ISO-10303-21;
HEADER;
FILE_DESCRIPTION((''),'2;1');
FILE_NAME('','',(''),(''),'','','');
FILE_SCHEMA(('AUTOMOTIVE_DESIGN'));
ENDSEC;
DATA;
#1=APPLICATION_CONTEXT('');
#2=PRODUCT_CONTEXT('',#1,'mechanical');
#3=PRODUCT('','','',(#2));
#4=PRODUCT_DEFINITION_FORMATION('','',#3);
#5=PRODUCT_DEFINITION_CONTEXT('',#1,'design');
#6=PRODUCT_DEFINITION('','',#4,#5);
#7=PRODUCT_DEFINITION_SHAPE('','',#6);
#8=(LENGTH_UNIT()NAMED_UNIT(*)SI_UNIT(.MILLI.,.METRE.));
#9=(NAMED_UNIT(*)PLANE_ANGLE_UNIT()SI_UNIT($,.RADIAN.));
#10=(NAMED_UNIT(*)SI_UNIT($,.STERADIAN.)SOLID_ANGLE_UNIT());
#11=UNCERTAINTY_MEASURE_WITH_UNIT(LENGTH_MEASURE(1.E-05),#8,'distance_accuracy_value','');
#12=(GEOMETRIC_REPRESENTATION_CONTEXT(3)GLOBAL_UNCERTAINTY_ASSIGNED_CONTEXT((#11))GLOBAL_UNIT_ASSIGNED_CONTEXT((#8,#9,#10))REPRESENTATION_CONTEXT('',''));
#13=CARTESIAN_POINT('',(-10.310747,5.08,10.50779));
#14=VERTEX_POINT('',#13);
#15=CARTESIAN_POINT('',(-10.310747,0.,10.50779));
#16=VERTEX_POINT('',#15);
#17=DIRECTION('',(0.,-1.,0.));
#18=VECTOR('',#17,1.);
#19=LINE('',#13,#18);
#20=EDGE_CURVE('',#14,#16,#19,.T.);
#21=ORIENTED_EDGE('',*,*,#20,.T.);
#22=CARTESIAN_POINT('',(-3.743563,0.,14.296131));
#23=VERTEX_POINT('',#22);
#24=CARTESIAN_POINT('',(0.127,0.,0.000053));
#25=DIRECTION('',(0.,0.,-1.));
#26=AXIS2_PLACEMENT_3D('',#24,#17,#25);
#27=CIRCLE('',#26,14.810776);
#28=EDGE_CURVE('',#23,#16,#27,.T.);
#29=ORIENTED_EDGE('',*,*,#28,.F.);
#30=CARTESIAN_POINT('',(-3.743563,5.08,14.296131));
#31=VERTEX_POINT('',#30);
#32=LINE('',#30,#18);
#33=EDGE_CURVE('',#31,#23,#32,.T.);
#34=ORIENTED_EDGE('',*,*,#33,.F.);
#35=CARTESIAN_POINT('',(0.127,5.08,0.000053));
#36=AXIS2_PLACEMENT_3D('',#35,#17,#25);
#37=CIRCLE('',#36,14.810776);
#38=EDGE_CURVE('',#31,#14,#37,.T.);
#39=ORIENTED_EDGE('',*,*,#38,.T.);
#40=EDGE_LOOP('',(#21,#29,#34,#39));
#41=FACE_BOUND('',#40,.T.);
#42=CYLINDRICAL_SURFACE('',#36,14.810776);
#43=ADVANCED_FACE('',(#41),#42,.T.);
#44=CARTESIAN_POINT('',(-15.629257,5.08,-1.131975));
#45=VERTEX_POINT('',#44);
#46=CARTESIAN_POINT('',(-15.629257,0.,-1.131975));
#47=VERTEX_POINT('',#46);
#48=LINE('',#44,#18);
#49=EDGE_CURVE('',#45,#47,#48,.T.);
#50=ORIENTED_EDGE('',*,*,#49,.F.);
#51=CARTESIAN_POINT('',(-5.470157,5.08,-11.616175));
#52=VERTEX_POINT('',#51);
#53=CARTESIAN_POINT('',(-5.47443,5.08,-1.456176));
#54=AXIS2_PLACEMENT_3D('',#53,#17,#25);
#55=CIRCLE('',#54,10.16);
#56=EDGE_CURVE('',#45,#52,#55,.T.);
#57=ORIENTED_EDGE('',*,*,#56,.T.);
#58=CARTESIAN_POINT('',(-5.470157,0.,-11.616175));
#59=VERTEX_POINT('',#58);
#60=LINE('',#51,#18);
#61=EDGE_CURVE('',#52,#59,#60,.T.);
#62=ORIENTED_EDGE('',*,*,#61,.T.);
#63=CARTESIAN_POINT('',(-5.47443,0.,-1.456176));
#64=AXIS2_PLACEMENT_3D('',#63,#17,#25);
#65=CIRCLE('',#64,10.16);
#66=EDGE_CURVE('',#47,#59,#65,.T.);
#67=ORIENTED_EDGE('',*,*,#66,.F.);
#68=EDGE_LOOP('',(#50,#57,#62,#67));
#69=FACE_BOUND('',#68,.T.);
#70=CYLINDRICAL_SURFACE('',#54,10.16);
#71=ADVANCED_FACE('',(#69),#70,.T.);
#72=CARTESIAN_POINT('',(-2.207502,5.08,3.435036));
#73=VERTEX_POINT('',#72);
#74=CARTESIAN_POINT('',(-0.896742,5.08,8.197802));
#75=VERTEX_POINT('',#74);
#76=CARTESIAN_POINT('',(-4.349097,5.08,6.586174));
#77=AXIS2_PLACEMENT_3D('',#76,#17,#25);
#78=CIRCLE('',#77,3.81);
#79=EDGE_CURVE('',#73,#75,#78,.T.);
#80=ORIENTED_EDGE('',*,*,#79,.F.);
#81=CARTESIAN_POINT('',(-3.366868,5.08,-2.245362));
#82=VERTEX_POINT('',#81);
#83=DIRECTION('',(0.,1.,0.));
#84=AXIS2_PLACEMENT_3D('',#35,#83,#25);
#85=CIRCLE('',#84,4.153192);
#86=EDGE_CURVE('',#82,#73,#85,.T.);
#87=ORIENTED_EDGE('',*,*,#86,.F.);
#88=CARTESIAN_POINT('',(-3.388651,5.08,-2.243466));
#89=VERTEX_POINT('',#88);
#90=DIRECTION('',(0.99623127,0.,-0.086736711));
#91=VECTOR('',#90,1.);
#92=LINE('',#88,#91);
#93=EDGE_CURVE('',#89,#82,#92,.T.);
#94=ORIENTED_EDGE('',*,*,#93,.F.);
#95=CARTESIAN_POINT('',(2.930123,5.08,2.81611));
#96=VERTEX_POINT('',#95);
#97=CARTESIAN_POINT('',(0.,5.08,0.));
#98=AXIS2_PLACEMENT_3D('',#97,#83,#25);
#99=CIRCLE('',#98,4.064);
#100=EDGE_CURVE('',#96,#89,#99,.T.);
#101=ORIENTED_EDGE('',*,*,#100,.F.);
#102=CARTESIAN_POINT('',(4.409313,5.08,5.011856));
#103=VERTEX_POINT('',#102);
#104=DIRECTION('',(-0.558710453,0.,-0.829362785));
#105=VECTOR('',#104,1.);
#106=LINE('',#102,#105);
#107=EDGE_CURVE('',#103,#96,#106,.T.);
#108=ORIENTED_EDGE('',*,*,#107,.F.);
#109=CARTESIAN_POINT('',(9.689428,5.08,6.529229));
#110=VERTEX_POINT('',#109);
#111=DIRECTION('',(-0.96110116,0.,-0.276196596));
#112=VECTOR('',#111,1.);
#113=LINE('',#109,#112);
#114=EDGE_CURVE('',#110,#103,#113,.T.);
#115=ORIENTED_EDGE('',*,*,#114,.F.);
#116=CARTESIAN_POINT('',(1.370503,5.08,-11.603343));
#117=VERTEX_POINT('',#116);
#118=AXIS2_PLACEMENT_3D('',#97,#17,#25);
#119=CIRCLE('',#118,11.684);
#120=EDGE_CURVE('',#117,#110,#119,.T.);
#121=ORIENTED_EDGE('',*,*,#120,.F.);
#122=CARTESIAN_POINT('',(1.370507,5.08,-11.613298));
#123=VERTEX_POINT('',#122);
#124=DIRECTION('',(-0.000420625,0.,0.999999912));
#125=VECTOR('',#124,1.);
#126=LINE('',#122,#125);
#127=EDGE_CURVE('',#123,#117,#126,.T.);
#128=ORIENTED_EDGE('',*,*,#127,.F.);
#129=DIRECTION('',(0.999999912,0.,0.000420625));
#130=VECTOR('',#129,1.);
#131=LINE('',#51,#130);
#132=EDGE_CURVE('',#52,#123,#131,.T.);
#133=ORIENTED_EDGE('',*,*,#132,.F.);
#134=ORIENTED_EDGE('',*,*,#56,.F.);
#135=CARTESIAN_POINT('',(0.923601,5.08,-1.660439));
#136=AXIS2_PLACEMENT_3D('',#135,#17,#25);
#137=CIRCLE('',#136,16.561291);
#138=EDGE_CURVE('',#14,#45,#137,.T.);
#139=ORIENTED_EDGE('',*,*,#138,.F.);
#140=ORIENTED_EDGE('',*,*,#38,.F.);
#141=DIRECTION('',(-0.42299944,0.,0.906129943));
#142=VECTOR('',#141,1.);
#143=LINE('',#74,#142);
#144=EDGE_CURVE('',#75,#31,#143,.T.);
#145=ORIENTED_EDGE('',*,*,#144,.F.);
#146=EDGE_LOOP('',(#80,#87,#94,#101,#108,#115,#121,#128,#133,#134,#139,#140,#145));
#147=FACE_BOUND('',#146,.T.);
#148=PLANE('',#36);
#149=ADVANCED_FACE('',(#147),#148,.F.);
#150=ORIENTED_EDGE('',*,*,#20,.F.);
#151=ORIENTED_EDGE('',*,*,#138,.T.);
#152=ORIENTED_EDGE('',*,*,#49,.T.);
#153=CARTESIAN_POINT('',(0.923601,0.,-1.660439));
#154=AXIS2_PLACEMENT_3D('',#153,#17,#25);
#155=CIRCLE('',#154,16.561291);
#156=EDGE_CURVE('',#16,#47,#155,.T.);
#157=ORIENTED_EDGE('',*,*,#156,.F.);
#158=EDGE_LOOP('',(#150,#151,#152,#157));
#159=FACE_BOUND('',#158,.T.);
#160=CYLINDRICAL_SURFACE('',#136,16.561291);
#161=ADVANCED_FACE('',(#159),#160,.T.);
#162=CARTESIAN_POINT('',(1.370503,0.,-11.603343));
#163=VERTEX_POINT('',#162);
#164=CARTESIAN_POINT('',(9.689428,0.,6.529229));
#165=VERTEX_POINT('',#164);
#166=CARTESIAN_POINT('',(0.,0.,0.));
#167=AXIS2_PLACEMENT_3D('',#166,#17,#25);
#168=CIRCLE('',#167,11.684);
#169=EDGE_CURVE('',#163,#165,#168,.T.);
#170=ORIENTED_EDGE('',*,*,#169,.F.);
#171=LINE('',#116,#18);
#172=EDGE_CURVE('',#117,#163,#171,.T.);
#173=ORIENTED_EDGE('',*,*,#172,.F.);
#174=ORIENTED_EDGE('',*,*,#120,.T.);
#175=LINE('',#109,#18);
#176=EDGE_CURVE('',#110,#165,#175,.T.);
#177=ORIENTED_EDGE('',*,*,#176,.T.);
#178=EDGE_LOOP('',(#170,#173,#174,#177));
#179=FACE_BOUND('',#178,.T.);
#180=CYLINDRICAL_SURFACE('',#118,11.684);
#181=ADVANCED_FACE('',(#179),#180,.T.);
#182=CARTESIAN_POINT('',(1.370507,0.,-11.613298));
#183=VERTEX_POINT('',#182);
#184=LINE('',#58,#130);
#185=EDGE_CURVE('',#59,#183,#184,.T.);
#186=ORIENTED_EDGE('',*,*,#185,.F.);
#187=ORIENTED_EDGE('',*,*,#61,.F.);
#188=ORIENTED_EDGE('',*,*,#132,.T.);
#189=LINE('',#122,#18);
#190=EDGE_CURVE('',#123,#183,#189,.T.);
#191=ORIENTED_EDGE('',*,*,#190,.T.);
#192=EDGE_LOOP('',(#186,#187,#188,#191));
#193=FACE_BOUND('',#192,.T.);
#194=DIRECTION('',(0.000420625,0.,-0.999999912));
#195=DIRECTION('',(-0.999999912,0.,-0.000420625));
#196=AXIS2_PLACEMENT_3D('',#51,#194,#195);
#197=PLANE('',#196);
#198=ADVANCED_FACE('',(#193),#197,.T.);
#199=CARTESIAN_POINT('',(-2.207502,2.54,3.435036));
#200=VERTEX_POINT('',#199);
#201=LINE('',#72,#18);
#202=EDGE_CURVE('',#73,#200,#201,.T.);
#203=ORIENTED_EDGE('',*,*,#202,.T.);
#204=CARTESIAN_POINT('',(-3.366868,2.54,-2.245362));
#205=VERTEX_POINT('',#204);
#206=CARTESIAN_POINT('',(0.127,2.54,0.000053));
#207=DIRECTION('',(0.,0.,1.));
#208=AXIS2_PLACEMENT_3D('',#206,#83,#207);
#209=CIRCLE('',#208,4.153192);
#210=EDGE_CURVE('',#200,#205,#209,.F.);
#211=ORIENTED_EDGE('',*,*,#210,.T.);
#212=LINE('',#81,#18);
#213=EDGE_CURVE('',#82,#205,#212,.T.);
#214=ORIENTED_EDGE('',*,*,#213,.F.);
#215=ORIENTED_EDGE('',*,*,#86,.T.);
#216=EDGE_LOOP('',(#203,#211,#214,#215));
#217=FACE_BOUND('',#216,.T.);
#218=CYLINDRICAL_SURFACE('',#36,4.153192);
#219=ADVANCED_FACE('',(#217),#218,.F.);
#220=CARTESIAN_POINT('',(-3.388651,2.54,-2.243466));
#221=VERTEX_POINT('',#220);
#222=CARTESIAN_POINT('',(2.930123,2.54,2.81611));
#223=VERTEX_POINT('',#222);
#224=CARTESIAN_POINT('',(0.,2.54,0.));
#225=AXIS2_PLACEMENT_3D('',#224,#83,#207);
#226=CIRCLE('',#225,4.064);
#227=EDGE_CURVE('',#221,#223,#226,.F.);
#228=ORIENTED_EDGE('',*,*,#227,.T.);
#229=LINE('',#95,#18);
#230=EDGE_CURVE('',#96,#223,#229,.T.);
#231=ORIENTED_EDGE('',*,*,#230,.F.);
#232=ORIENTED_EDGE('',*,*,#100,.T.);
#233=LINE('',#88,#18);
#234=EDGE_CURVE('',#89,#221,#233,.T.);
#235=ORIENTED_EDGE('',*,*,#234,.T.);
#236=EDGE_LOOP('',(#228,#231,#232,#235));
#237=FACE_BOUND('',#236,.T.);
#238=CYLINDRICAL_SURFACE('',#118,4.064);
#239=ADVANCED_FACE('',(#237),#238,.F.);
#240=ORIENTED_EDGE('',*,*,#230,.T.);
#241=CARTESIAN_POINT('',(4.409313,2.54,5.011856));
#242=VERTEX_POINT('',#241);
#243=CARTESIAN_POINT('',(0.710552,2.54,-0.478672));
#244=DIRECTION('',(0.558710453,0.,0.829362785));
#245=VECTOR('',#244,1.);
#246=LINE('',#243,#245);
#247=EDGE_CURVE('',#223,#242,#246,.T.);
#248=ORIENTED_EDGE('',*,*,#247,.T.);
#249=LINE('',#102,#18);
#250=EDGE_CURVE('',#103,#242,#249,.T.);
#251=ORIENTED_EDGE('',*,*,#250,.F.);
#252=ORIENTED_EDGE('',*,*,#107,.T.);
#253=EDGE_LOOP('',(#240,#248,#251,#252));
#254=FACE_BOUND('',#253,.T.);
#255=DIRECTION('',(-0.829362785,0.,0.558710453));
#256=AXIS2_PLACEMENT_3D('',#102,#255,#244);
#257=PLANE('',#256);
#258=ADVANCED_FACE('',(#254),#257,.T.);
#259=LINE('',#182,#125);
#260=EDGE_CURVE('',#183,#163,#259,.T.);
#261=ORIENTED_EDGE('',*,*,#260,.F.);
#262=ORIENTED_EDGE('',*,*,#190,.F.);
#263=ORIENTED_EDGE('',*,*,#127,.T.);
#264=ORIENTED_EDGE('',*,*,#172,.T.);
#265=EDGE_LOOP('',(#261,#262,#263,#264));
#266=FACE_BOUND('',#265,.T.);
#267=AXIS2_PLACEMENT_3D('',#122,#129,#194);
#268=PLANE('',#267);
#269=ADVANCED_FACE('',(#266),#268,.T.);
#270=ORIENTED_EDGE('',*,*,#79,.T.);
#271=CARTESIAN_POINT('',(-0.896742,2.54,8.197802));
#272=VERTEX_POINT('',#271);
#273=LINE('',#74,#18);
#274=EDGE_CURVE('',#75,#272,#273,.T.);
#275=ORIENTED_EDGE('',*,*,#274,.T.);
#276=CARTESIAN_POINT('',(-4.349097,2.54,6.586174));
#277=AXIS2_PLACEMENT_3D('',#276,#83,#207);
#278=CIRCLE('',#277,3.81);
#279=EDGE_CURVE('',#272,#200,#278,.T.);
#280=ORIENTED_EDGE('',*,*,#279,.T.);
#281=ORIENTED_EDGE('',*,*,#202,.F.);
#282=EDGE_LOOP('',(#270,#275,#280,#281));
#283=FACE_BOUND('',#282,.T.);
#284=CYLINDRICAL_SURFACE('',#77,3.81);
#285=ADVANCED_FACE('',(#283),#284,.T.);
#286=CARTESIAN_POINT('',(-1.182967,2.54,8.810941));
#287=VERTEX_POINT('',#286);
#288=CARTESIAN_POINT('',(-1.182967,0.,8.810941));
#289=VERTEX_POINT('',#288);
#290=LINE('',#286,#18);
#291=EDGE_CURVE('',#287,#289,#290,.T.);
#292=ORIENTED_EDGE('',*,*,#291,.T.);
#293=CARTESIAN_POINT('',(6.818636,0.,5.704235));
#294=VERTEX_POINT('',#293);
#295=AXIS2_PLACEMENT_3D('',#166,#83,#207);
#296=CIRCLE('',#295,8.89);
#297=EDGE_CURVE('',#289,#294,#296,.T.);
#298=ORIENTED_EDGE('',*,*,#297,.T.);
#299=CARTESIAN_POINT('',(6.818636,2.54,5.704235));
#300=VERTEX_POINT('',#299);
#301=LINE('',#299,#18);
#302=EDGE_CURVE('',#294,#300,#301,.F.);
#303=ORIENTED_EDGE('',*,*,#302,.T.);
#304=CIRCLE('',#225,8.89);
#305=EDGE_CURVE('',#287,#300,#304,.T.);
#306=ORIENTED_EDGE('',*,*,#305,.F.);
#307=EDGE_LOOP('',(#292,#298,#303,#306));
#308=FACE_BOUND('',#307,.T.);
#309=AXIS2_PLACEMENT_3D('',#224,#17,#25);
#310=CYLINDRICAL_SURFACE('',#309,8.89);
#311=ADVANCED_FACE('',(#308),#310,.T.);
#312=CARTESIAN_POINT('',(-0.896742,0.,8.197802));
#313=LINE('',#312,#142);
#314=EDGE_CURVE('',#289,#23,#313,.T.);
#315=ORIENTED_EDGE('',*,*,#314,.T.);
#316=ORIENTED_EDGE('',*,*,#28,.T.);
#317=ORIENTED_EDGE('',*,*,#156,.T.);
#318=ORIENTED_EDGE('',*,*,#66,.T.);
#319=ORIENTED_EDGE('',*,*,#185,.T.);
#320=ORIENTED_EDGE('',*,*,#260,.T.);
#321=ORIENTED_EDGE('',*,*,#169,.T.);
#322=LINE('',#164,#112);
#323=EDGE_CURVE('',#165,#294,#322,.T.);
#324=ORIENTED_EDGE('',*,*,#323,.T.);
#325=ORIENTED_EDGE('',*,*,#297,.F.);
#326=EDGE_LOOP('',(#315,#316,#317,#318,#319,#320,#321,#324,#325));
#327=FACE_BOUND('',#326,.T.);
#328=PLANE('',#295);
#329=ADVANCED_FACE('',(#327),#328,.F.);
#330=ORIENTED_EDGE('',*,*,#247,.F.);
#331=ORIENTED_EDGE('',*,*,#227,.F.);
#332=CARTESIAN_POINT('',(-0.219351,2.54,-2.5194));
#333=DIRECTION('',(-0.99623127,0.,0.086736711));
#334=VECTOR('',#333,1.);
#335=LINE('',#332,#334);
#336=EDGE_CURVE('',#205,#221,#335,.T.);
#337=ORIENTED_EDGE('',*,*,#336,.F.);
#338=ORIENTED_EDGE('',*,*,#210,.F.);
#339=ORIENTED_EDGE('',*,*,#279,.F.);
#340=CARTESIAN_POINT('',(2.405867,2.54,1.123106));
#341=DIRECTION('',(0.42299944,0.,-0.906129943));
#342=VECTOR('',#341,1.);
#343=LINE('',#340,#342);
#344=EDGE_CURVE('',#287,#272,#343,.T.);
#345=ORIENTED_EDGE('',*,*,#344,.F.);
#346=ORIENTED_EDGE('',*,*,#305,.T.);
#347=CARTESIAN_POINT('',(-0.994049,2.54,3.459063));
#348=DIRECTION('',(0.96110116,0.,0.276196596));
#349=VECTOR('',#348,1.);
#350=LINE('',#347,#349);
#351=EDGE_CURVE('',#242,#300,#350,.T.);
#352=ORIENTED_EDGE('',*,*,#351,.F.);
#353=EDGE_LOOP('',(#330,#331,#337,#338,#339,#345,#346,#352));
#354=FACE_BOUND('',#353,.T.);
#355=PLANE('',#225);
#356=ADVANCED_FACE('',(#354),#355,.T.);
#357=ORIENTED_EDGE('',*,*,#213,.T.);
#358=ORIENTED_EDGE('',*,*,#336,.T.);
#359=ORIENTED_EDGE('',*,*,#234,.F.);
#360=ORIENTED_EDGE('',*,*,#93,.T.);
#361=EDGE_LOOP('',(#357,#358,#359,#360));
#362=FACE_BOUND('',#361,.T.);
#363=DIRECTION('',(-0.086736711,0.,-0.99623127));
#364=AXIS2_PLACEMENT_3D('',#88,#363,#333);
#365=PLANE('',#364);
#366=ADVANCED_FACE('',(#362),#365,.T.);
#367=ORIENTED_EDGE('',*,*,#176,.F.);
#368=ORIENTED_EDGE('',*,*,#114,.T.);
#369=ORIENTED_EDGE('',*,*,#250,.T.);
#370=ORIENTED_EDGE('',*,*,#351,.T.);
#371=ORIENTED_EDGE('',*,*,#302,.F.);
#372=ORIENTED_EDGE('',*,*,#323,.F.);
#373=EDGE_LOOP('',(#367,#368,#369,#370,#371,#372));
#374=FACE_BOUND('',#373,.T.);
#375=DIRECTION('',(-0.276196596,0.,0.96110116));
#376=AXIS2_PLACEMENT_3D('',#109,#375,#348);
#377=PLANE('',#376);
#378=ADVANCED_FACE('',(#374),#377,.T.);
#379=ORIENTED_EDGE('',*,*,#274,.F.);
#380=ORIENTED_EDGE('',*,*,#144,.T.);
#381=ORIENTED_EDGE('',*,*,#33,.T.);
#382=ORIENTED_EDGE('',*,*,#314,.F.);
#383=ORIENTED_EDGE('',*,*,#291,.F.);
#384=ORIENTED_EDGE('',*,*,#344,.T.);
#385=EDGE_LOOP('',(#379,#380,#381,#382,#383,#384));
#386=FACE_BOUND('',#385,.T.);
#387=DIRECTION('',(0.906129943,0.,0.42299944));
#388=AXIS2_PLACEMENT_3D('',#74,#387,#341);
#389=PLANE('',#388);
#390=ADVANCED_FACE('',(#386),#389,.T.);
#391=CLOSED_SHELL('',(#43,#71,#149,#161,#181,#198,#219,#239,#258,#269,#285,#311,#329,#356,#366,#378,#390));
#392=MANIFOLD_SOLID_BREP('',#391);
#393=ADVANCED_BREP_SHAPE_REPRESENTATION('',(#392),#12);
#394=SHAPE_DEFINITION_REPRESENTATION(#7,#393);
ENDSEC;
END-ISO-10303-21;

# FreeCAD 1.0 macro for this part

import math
import FreeCAD as App
import Part
import Sketcher
Q = App.Units.Quantity

doc = App.newDocument("Part")
body = doc.addObject("PartDesign::Body", "Body")

# Sketch on XZ plane
sketch1 = body.newObject("Sketcher::SketchObject", "Sketch")
sketch1.AttachmentSupport = (doc.getObject("XZ_Plane"), [""])
sketch1.MapMode = "FlatFace"
sketch1.addGeometry(Part.Circle(App.Vector(0, 0, 0), App.Vector(0, 0, 1), 9), False)
sketch1.addConstraint([
    Sketcher.Constraint("Coincident", 0, 3, -1, 1),
    Sketcher.Constraint("Diameter", 0, Q("0.7 in")),
])
pad1 = body.newObject("PartDesign::Pad", "Pad")
pad1.Profile = sketch1
pad1.Length = Q("0.1 in")
pad1.Reversed = True

# Sketch on XZ plane
sketch2 = body.newObject("Sketcher::SketchObject", "Sketch001")
sketch2.AttachmentSupport = (doc.getObject("XZ_Plane"), [""])
sketch2.MapMode = "FlatFace"
sketch2.addGeometry([
    Part.LineSegment(App.Vector(-5.47, -11.616, 0), App.Vector(1.371, -11.613, 0)),  # 0
    Part.LineSegment(App.Vector(1.371, -11.613, 0), App.Vector(1.371, -11.603, 0)),  # 1
    Part.ArcOfCircle(Part.Circle(App.Vector(0, 0, 0), App.Vector(0, 0, 1), 11.684), math.radians(-83), math.radians(34)),  # 2
    Part.LineSegment(App.Vector(9.689, 6.529, 0), App.Vector(4.409, 5.012, 0)),  # 3
    Part.LineSegment(App.Vector(4.409, 5.012, 0), App.Vector(2.93, 2.816, 0)),  # 4
    Part.ArcOfCircle(Part.Circle(App.Vector(0, 0, 0), App.Vector(0, 0, 1), 4.064), math.radians(-146), math.radians(44)),  # 5
    Part.LineSegment(App.Vector(-3.389, -2.243, 0), App.Vector(-3.367, -2.245, 0)),  # 6
    Part.ArcOfCircle(Part.Circle(App.Vector(0.127, 0, 0), App.Vector(0, 0, 1), 4.153), math.radians(124), math.radians(213)),  # 7
    Part.ArcOfCircle(Part.Circle(App.Vector(-4.349, 6.586, 0), App.Vector(0, 0, 1), 3.81), math.radians(-56), math.radians(25)),  # 8
    Part.LineSegment(App.Vector(-0.897, 8.198, 0), App.Vector(-3.744, 14.296, 0)),  # 9
    Part.ArcOfCircle(Part.Circle(App.Vector(0.127, 0, 0), App.Vector(0, 0, 1), 14.811), math.radians(105), math.radians(135)),  # 10
    Part.ArcOfCircle(Part.Circle(App.Vector(0.924, -1.66, 0), App.Vector(0, 0, 1), 16.561), math.radians(133), math.radians(178)),  # 11
    Part.ArcOfCircle(Part.Circle(App.Vector(-5.474, -1.456, 0), App.Vector(0, 0, 1), 10.16), math.radians(178), math.radians(270)),  # 12
], False)
sketch2.addConstraint([
    Sketcher.Constraint("Coincident", 0, 2, 1, 1),
    Sketcher.Constraint("Coincident", 1, 2, 2, 1),
    Sketcher.Constraint("Coincident", 2, 2, 3, 1),
    Sketcher.Constraint("Coincident", 3, 2, 4, 1),
    Sketcher.Constraint("Coincident", 4, 2, 5, 2),
    Sketcher.Constraint("Coincident", 5, 1, 6, 1),
    Sketcher.Constraint("Coincident", 6, 2, 7, 2),
    Sketcher.Constraint("Tangent", 7, 1, 8, 1),
    Sketcher.Constraint("Tangent", 8, 2, 9, 1),
    Sketcher.Constraint("Coincident", 9, 2, 10, 1),
    Sketcher.Constraint("Coincident", 10, 2, 11, 1),
    Sketcher.Constraint("Tangent", 11, 2, 12, 1),
    Sketcher.Constraint("Tangent", 12, 2, 0, 1),
    Sketcher.Constraint("Coincident", 2, 3, -1, 1),
    Sketcher.Constraint("Coincident", 5, 3, -1, 1),
    Sketcher.Constraint("Coincident", 10, 3, 7, 3),
    Sketcher.Constraint("Perpendicular", 0, 1),
    Sketcher.Constraint("Radius", 12, Q("0.4 in")),
    Sketcher.Constraint("Radius", 2, Q("0.46 in")),
    Sketcher.Constraint("Radius", 5, Q("0.16 in")),
    Sketcher.Constraint("Radius", 8, Q("0.15 in")),
    Sketcher.Constraint("DistanceX", -1, 1, 7, 3, Q("0.005 in")),
    Sketcher.Constraint("Radius", 7, Q("4.153192 mm")),
    Sketcher.Constraint("Radius", 11, Q("16.561291 mm")),
    Sketcher.Constraint("DistanceY", 6, 2, -1, 1, Q("0.0884001 in")),
    Sketcher.Constraint("Radius", 10, Q("14.810776 mm")),
    Sketcher.Constraint("DistanceX", 8, 2, 3, 2, Q("0.2088998 in")),
    Sketcher.Constraint("DistanceX", -1, 1, 11, 3, Q("0.923601 mm")),
    Sketcher.Constraint("DistanceY", -1, 1, 8, 2, Q("8.197802 mm")),
    Sketcher.Constraint("DistanceX", 11, 3, 1, 2, Q("0.446902 mm")),
    Sketcher.Constraint("DistanceY", 12, 3, 11, 2, Q("0.324201 mm")),
    Sketcher.Constraint("Distance", 4, Q("2.647509 mm")),
    Sketcher.Constraint("DistanceY", 11, 3, -1, 1, Q("1.660439 mm")),
    Sketcher.Constraint("DistanceX", -1, 1, 2, 2, Q("9.689428 mm")),
    Sketcher.Constraint("DistanceY", -1, 1, 4, 2, Q("2.81611 mm")),
    Sketcher.Constraint("DistanceX", 5, 1, -1, 1, Q("3.388651 mm")),
    Sketcher.Constraint("DistanceX", 8, 2, -1, 1, Q("0.896742 mm")),
    Sketcher.Constraint("DistanceY", -1, 1, 9, 2, Q("14.296131 mm")),
    Sketcher.Constraint("DistanceY", 0, 2, 11, 3, Q("9.952859 mm")),
])
pad2 = body.newObject("PartDesign::Pad", "Pad001")
pad2.Profile = sketch2
pad2.Length = Q("0.2 in")
pad2.Reversed = True

doc.recompute()
